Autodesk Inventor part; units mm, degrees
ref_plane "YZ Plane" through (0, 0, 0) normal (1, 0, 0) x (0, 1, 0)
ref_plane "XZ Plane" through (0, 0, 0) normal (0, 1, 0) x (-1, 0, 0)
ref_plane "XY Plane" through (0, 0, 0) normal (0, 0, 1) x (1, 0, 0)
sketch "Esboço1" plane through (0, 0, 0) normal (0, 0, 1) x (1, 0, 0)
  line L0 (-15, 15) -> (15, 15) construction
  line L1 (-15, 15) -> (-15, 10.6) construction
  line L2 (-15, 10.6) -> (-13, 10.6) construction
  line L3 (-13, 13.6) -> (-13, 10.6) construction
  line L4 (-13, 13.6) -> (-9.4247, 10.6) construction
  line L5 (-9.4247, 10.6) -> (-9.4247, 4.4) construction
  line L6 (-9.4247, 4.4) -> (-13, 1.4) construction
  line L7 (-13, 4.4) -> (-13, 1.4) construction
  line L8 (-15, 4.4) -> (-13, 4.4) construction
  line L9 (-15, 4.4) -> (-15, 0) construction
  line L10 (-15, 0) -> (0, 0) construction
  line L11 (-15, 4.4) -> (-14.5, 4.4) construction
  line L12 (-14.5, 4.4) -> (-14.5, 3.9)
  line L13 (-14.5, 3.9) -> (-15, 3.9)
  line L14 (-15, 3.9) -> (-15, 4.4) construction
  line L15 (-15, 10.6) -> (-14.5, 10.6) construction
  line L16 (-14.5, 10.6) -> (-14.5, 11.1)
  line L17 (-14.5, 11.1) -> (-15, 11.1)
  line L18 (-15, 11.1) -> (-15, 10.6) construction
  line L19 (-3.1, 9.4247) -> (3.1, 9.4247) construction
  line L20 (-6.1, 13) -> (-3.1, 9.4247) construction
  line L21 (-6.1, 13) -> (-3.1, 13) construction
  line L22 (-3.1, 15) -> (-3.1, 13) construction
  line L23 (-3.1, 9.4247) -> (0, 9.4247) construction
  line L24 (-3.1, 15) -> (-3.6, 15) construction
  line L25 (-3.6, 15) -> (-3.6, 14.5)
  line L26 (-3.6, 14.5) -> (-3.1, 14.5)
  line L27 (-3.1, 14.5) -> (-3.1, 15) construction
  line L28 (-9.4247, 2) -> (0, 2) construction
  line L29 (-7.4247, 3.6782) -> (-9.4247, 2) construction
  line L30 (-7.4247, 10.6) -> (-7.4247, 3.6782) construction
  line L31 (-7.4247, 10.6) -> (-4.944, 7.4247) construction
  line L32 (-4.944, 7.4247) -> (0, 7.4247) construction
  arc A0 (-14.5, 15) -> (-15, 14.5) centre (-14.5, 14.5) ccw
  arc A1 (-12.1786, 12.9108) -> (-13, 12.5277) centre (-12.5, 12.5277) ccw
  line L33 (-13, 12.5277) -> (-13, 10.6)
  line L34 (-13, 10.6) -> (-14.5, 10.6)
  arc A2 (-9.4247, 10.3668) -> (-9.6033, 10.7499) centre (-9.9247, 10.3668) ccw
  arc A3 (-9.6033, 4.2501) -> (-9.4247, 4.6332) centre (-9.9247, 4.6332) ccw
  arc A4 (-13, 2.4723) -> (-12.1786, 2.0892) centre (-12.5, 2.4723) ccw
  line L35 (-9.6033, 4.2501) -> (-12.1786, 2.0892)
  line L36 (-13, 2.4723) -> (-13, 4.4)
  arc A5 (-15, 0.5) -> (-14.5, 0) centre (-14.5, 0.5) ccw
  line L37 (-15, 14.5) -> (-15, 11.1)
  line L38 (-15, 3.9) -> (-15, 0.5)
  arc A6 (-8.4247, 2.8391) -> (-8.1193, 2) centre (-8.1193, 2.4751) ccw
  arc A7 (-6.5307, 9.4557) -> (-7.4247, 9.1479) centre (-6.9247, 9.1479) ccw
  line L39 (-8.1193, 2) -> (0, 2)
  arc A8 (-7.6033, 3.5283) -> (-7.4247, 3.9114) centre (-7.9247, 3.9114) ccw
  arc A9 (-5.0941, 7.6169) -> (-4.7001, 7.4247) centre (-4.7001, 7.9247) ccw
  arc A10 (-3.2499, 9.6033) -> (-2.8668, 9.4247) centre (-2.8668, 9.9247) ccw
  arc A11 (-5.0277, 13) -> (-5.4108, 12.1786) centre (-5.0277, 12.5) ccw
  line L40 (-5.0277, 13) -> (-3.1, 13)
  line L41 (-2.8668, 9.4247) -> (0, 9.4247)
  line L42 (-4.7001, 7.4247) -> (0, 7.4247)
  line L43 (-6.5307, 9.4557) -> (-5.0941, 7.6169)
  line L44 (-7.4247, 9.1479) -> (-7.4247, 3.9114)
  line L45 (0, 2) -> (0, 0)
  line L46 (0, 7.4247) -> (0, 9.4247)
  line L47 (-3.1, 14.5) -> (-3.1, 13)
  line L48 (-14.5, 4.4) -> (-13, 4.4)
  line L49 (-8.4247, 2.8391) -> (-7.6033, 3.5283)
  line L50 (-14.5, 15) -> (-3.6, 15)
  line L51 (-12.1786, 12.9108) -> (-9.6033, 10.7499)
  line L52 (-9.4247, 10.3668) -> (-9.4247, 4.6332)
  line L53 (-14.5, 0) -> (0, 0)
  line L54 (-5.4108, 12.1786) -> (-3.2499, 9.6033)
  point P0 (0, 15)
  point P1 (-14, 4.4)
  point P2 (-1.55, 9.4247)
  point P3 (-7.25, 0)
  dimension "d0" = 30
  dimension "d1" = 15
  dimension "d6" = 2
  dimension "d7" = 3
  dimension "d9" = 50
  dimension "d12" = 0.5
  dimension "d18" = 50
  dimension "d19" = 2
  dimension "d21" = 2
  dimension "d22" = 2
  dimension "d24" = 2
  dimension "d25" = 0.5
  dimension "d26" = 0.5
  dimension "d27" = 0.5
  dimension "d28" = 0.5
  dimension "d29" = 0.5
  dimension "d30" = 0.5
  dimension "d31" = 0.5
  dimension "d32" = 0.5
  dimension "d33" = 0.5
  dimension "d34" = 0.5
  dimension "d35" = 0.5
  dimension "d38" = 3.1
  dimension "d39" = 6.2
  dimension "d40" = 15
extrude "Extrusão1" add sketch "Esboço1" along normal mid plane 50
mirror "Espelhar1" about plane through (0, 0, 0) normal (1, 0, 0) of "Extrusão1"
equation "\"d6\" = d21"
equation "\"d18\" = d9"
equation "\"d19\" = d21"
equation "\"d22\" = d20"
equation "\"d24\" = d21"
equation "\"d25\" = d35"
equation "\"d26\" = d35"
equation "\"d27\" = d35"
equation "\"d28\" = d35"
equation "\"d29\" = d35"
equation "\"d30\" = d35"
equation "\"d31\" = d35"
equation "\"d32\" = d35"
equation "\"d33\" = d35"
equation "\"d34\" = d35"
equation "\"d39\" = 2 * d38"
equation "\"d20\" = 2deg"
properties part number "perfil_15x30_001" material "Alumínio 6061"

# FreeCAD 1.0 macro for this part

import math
import FreeCAD as App
import Part
import Sketcher
from FreeCAD import Vector
Q = App.Units.Quantity

doc = App.newDocument("Part")
params = doc.addObject("Spreadsheet::Sheet", "Params")
for row, (alias, value) in enumerate([
    ("sketch1_radius", "0.5 mm"),
    ("sketch1_height", "2 mm"),
    ("sketch1_width", "4.7 mm"),
    ("sketch1_height2", "3.4 mm"),
    ("pad1_length", "50 mm"),
], start=1):
    params.set(f"A{row}", alias)
    params.set(f"B{row}", "=" + value)
    params.setAlias(f"B{row}", alias)

body = doc.addObject("PartDesign::Body", "Body")

# Sketch on XY plane
sketch1 = doc.addObject("Sketcher::SketchObject", "Sketch")
body.addObject(sketch1)
sketch1.AttachmentSupport = (doc.XY_Plane, [""])
sketch1.MapMode = "FlatFace"
sketch1.addGeometry(Part.LineSegment(Vector(-13, 4.4, 0), Vector(-14.5, 4.4, 0)), False)
sketch1.addGeometry(Part.LineSegment(Vector(-14.5, 4.4, 0), Vector(-14.5, 3.9, 0)), False)
sketch1.addGeometry(Part.LineSegment(Vector(-14.5, 3.9, 0), Vector(-15, 3.9, 0)), False)
sketch1.addGeometry(Part.LineSegment(Vector(-15, 3.9, 0), Vector(-15, 0.5, 0)), False)
sketch1.addGeometry(Part.ArcOfCircle(Part.Circle(Vector(-14.5, 0.5, 0), Vector(0, 0, 1), 0.5), math.radians(180), math.radians(270)), False)
sketch1.addGeometry(Part.LineSegment(Vector(-14.5, 0, 0), Vector(0, 0, 0)), False)
sketch1.addGeometry(Part.LineSegment(Vector(0, 0, 0), Vector(0, 2, 0)), False)
sketch1.addGeometry(Part.LineSegment(Vector(0, 2, 0), Vector(-8.12, 2, 0)), False)
sketch1.addGeometry(Part.ArcOfCircle(Part.Circle(Vector(-8.12, 2.48, 0), Vector(0, 0, 1), 0.48), math.radians(130), math.radians(270)), False)
sketch1.addGeometry(Part.LineSegment(Vector(-8.42, 2.84, 0), Vector(-7.6, 3.53, 0)), False)
sketch1.addGeometry(Part.ArcOfCircle(Part.Circle(Vector(-7.92, 3.91, 0), Vector(0, 0, 1), 0.5), math.radians(-50), math.radians(0)), False)
sketch1.addGeometry(Part.LineSegment(Vector(-7.42, 3.91, 0), Vector(-7.42, 9.15, 0)), False)
sketch1.addGeometry(Part.ArcOfCircle(Part.Circle(Vector(-6.92, 9.15, 0), Vector(0, 0, 1), 0.5), math.radians(38), math.radians(180)), False)
sketch1.addGeometry(Part.LineSegment(Vector(-6.53, 9.46, 0), Vector(-5.09, 7.62, 0)), False)
sketch1.addGeometry(Part.ArcOfCircle(Part.Circle(Vector(-4.7, 7.92, 0), Vector(0, 0, 1), 0.5), math.radians(-142), math.radians(-90)), False)
sketch1.addGeometry(Part.LineSegment(Vector(-4.7, 7.42, 0), Vector(0, 7.42, 0)), False)
sketch1.addGeometry(Part.LineSegment(Vector(0, 7.42, 0), Vector(0, 9.42, 0)), False)
sketch1.addGeometry(Part.LineSegment(Vector(0, 9.42, 0), Vector(-2.87, 9.42, 0)), False)
sketch1.addGeometry(Part.ArcOfCircle(Part.Circle(Vector(-2.87, 9.92, 0), Vector(0, 0, 1), 0.5), math.radians(-140), math.radians(-90)), False)
sketch1.addGeometry(Part.LineSegment(Vector(-3.25, 9.6, 0), Vector(-5.41, 12.18, 0)), False)
sketch1.addGeometry(Part.ArcOfCircle(Part.Circle(Vector(-5.03, 12.5, 0), Vector(0, 0, 1), 0.5), math.radians(90), math.radians(220)), False)
sketch1.addGeometry(Part.LineSegment(Vector(-5.03, 13, 0), Vector(-3.1, 13, 0)), False)
sketch1.addGeometry(Part.LineSegment(Vector(-3.1, 13, 0), Vector(-3.1, 14.5, 0)), False)
sketch1.addGeometry(Part.LineSegment(Vector(-3.1, 14.5, 0), Vector(-3.6, 14.5, 0)), False)
sketch1.addGeometry(Part.LineSegment(Vector(-3.6, 14.5, 0), Vector(-3.6, 15, 0)), False)
sketch1.addGeometry(Part.LineSegment(Vector(-3.6, 15, 0), Vector(-14.5, 15, 0)), False)
sketch1.addGeometry(Part.ArcOfCircle(Part.Circle(Vector(-14.5, 14.5, 0), Vector(0, 0, 1), 0.5), math.radians(90), math.radians(180)), False)
sketch1.addGeometry(Part.LineSegment(Vector(-15, 14.5, 0), Vector(-15, 11.1, 0)), False)
sketch1.addGeometry(Part.LineSegment(Vector(-15, 11.1, 0), Vector(-14.5, 11.1, 0)), False)
sketch1.addGeometry(Part.LineSegment(Vector(-14.5, 11.1, 0), Vector(-14.5, 10.6, 0)), False)
sketch1.addGeometry(Part.LineSegment(Vector(-14.5, 10.6, 0), Vector(-13, 10.6, 0)), False)
sketch1.addGeometry(Part.LineSegment(Vector(-13, 10.6, 0), Vector(-13, 12.53, 0)), False)
sketch1.addGeometry(Part.ArcOfCircle(Part.Circle(Vector(-12.5, 12.53, 0), Vector(0, 0, 1), 0.5), math.radians(50), math.radians(180)), False)
sketch1.addGeometry(Part.LineSegment(Vector(-12.18, 12.91, 0), Vector(-9.6, 10.75, 0)), False)
sketch1.addGeometry(Part.ArcOfCircle(Part.Circle(Vector(-9.92, 10.37, 0), Vector(0, 0, 1), 0.5), math.radians(0), math.radians(50)), False)
sketch1.addGeometry(Part.LineSegment(Vector(-9.42, 10.37, 0), Vector(-9.42, 4.63, 0)), False)
sketch1.addGeometry(Part.ArcOfCircle(Part.Circle(Vector(-9.92, 4.63, 0), Vector(0, 0, 1), 0.5), math.radians(-50), math.radians(0)), False)
sketch1.addGeometry(Part.LineSegment(Vector(-9.6, 4.25, 0), Vector(-12.18, 2.09, 0)), False)
sketch1.addGeometry(Part.ArcOfCircle(Part.Circle(Vector(-12.5, 2.47, 0), Vector(0, 0, 1), 0.5), math.radians(180), math.radians(310)), False)
sketch1.addGeometry(Part.LineSegment(Vector(-13, 2.47, 0), Vector(-13, 4.4, 0)), False)
sketch1.addConstraint(Sketcher.Constraint("Coincident", 0, 2, 1, 1))
sketch1.addConstraint(Sketcher.Constraint("Coincident", 1, 2, 2, 1))
sketch1.addConstraint(Sketcher.Constraint("Coincident", 2, 2, 3, 1))
sketch1.addConstraint(Sketcher.Constraint("Tangent", 3, 2, 4, 1))
sketch1.addConstraint(Sketcher.Constraint("Tangent", 4, 2, 5, 1))
sketch1.addConstraint(Sketcher.Constraint("Coincident", 5, 2, 6, 1))
sketch1.addConstraint(Sketcher.Constraint("Coincident", 6, 2, 7, 1))
sketch1.addConstraint(Sketcher.Constraint("Tangent", 7, 2, 8, 2))
sketch1.addConstraint(Sketcher.Constraint("Tangent", 8, 1, 9, 1))
sketch1.addConstraint(Sketcher.Constraint("Tangent", 9, 2, 10, 1))
sketch1.addConstraint(Sketcher.Constraint("Tangent", 10, 2, 11, 1))
sketch1.addConstraint(Sketcher.Constraint("Tangent", 11, 2, 12, 2))
sketch1.addConstraint(Sketcher.Constraint("Tangent", 12, 1, 13, 1))
sketch1.addConstraint(Sketcher.Constraint("Tangent", 13, 2, 14, 1))
sketch1.addConstraint(Sketcher.Constraint("Tangent", 14, 2, 15, 1))
sketch1.addConstraint(Sketcher.Constraint("Coincident", 15, 2, 16, 1))
sketch1.addConstraint(Sketcher.Constraint("Coincident", 16, 2, 17, 1))
sketch1.addConstraint(Sketcher.Constraint("Tangent", 17, 2, 18, 2))
sketch1.addConstraint(Sketcher.Constraint("Tangent", 18, 1, 19, 1))
sketch1.addConstraint(Sketcher.Constraint("Tangent", 19, 2, 20, 2))
sketch1.addConstraint(Sketcher.Constraint("Tangent", 20, 1, 21, 1))
sketch1.addConstraint(Sketcher.Constraint("Coincident", 21, 2, 22, 1))
sketch1.addConstraint(Sketcher.Constraint("Coincident", 22, 2, 23, 1))
sketch1.addConstraint(Sketcher.Constraint("Coincident", 23, 2, 24, 1))
sketch1.addConstraint(Sketcher.Constraint("Coincident", 24, 2, 25, 1))
sketch1.addConstraint(Sketcher.Constraint("Tangent", 25, 2, 26, 1))
sketch1.addConstraint(Sketcher.Constraint("Tangent", 26, 2, 27, 1))
sketch1.addConstraint(Sketcher.Constraint("Coincident", 27, 2, 28, 1))
sketch1.addConstraint(Sketcher.Constraint("Coincident", 28, 2, 29, 1))
sketch1.addConstraint(Sketcher.Constraint("Coincident", 29, 2, 30, 1))
sketch1.addConstraint(Sketcher.Constraint("Coincident", 30, 2, 31, 1))
sketch1.addConstraint(Sketcher.Constraint("Tangent", 31, 2, 32, 2))
sketch1.addConstraint(Sketcher.Constraint("Tangent", 32, 1, 33, 1))
sketch1.addConstraint(Sketcher.Constraint("Tangent", 33, 2, 34, 2))
sketch1.addConstraint(Sketcher.Constraint("Tangent", 34, 1, 35, 1))
sketch1.addConstraint(Sketcher.Constraint("Tangent", 35, 2, 36, 2))
sketch1.addConstraint(Sketcher.Constraint("Tangent", 36, 1, 37, 1))
sketch1.addConstraint(Sketcher.Constraint("Tangent", 37, 2, 38, 2))
sketch1.addConstraint(Sketcher.Constraint("Tangent", 38, 1, 39, 1))
sketch1.addConstraint(Sketcher.Constraint("Coincident", 39, 2, 0, 1))
sketch1.addConstraint(Sketcher.Constraint("Horizontal", 0))
sketch1.addConstraint(Sketcher.Constraint("Vertical", 1))
sketch1.addConstraint(Sketcher.Constraint("Horizontal", 2))
sketch1.addConstraint(Sketcher.Constraint("Vertical", 3))
sketch1.addConstraint(Sketcher.Constraint("Horizontal", 5))
sketch1.addConstraint(Sketcher.Constraint("Vertical", 6))
sketch1.addConstraint(Sketcher.Constraint("Horizontal", 7))
sketch1.addConstraint(Sketcher.Constraint("Vertical", 11))
sketch1.addConstraint(Sketcher.Constraint("Horizontal", 15))
sketch1.addConstraint(Sketcher.Constraint("Vertical", 16))
sketch1.addConstraint(Sketcher.Constraint("Horizontal", 17))
sketch1.addConstraint(Sketcher.Constraint("Horizontal", 21))
sketch1.addConstraint(Sketcher.Constraint("Vertical", 22))
sketch1.addConstraint(Sketcher.Constraint("Horizontal", 23))
sketch1.addConstraint(Sketcher.Constraint("Vertical", 24))
sketch1.addConstraint(Sketcher.Constraint("Horizontal", 25))
sketch1.addConstraint(Sketcher.Constraint("Vertical", 27))
sketch1.addConstraint(Sketcher.Constraint("Horizontal", 28))
sketch1.addConstraint(Sketcher.Constraint("Vertical", 29))
sketch1.addConstraint(Sketcher.Constraint("Horizontal", 30))
sketch1.addConstraint(Sketcher.Constraint("Vertical", 31))
sketch1.addConstraint(Sketcher.Constraint("Vertical", 35))
sketch1.addConstraint(Sketcher.Constraint("Vertical", 39))
sketch1.addConstraint(Sketcher.Constraint("Coincident", 5, 2, -1, 1))
sketch1.addConstraint(Sketcher.Constraint("Equal", 4, 10))
sketch1.addConstraint(Sketcher.Constraint("Equal", 10, 12))
sketch1.addConstraint(Sketcher.Constraint("Equal", 12, 14))
sketch1.addConstraint(Sketcher.Constraint("Equal", 14, 18))
sketch1.addConstraint(Sketcher.Constraint("Equal", 18, 20))
sketch1.addConstraint(Sketcher.Constraint("Equal", 20, 26))
sketch1.addConstraint(Sketcher.Constraint("Equal", 26, 32))
sketch1.addConstraint(Sketcher.Constraint("Equal", 32, 34))
sketch1.addConstraint(Sketcher.Constraint("Equal", 34, 36))
sketch1.addConstraint(Sketcher.Constraint("Equal", 36, 38))
sketch1.addConstraint(Sketcher.Constraint("PointOnObject", 15, 2, -2))
sketch1.addConstraint(Sketcher.Constraint("Perpendicular", 9, 19))
sketch1.addConstraint(Sketcher.Constraint("Perpendicular", 19, 37))
sketch1.addConstraint(Sketcher.Constraint("Horizontal", 26, 3, 22, 2))
sketch1.addConstraint(Sketcher.Constraint("Vertical", 4, 3, 26, 3))
sketch1.addConstraint(Sketcher.Constraint("Vertical", 32, 3, 38, 3))
sketch1.addConstraint(Sketcher.Constraint("Vertical", 26, 3, 0, 2))
sketch1.addConstraint(Sketcher.Constraint("Vertical", 25, 2, 28, 2))
sketch1.addConstraint(Sketcher.Constraint("Vertical", 33, 2, 36, 1))
sketch1.addConstraint(Sketcher.Constraint("Equal", 2, 23))
sketch1.addConstraint(Sketcher.Constraint("Equal", 28, 1))
sketch1.addConstraint(Sketcher.Constraint("Equal", 6, 16))
sketch1.addConstraint(Sketcher.Constraint("Equal", 30, 22))
sketch1.addConstraint(Sketcher.Constraint("Equal", 3, 27))
sketch1.addConstraint(Sketcher.Constraint("Equal", 24, 29))
sketch1.addConstraint(Sketcher.Constraint("Equal", 21, 31))
sketch1.addConstraint(Sketcher.Constraint("Equal", 31, 39))
sketch1.addConstraint(Sketcher.Constraint("Equal", 19, 33))
sketch1.addConstraint(Sketcher.Constraint("Radius", 4, Q("0.5 mm")))
sketch1.addConstraint(Sketcher.Constraint("DistanceY", 6, 1, 6, 2, Q("2 mm")))
sketch1.addConstraint(Sketcher.Constraint("DistanceX", 2, 2, -1, 1, Q("15 mm")))
sketch1.addConstraint(Sketcher.Constraint("DistanceY", -1, 1, 24, 2, Q("15 mm")))
sketch1.addConstraint(Sketcher.Constraint("DistanceY", 20, 3, 26, 3, Q("2 mm")))
sketch1.addConstraint(Sketcher.Constraint("DistanceX", 34, 3, 12, 3, Q("3 mm")))
sketch1.addConstraint(Sketcher.Constraint("DistanceX", 21, 2, -1, 1, Q("3.1 mm")))
sketch1.addConstraint(Sketcher.Constraint("DistanceX", 8, 1, 10, 3, Q("0.5 mm")))
sketch1.addConstraint(Sketcher.Constraint("Angle", 13, Q("-52.0005 deg")))
sketch1.addConstraint(Sketcher.Constraint("Angle", 19, Q("129.9996 deg")))
sketch1.addConstraint(Sketcher.Constraint("DistanceX", 15, 1, 15, 2, Q("4.7 mm")))
sketch1.addConstraint(Sketcher.Constraint("DistanceY", 3, 2, 3, 1, Q("3.4 mm")))
sketch1.addConstraint(Sketcher.Constraint("Radius", 8, Q("0.4751 mm")))
sketch1.addConstraint(Sketcher.Constraint("DistanceX", 18, 1, -1, 1, Q("3.25 mm")))
sketch1.addConstraint(Sketcher.Constraint("DistanceX", 12, 1, 19, 2, Q("1.12 mm")))
sketch1.setExpression("Constraints[92]", "Params.sketch1_radius")
sketch1.setExpression("Constraints[93]", "Params.sketch1_height")
sketch1.setExpression("Constraints[102]", "Params.sketch1_width")
sketch1.setExpression("Constraints[103]", "Params.sketch1_height2")
pad1 = doc.addObject("PartDesign::Pad", "Pad")
body.addObject(pad1)
pad1.Profile = sketch1
pad1.setExpression("Length", "Params.pad1_length")
pad1.Midplane = True
doc.recompute()

mirrored = doc.addObject("PartDesign::Mirrored", "Mirrored")
body.addObject(mirrored)
mirrored.Originals = [pad1]
mirrored.MirrorPlane = (doc.YZ_Plane, [""])
body.Tip = mirrored

doc.recompute()
